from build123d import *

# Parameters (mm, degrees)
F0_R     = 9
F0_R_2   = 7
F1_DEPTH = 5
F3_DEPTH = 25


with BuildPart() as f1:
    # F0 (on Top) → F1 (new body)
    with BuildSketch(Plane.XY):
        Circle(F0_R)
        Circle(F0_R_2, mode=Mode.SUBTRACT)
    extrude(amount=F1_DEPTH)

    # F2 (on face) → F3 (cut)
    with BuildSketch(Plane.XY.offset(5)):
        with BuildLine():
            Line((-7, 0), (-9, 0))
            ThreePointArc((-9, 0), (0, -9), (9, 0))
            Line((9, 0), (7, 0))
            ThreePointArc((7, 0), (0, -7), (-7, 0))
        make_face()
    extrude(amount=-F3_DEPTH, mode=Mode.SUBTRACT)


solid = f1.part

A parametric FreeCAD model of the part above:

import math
import FreeCAD as App
import Part
import Sketcher
from FreeCAD import Vector
Q = App.Units.Quantity

doc = App.newDocument("Part")
body = doc.addObject("PartDesign::Body", "Body")

sketch1 = body.newObject("Sketcher::SketchObject", "Sketch")
sketch1.AttachmentSupport = (doc.getObject("XY_Plane"), [""])
sketch1.MapMode = "FlatFace"
sketch1.addGeometry([
    Part.Circle(Vector(0, 0, 0), Vector(0, 0, 1), 9),
    Part.Circle(Vector(0, 0, 0), Vector(0, 0, 1), 7),
], False)
sketch1.addConstraint([
    Sketcher.Constraint("Coincident", 0, 3, -1, 1),
    Sketcher.Constraint("Coincident", 1, 3, -1, 1),
    Sketcher.Constraint("Diameter", 0, Q("18 mm")),
    Sketcher.Constraint("Diameter", 1, Q("14 mm")),
])
pad1 = body.newObject("PartDesign::Pad", "Pad")
pad1.Profile = sketch1
pad1.Length = 5

sketch2 = body.newObject("Sketcher::SketchObject", "Sketch001")
sketch2.AttachmentSupport = (doc.getObject("XY_Plane"), [""])
sketch2.MapMode = "FlatFace"
sketch2.AttachmentOffset = App.Placement(Vector(0, 0, 5), App.Rotation())
sketch2.addGeometry([
    Part.LineSegment(Vector(-7, 0, 0), Vector(-9, 0, 0)),
    Part.ArcOfCircle(Part.Circle(Vector(0, 0, 0), Vector(0, 0, 1), 9), math.radians(180), math.radians(360)),
    Part.LineSegment(Vector(9, 0, 0), Vector(7, 0, 0)),
    Part.ArcOfCircle(Part.Circle(Vector(0, 0, 0), Vector(0, 0, 1), 7), math.radians(180), math.radians(360)),
], False)
sketch2.addConstraint([
    Sketcher.Constraint("Coincident", 0, 2, 1, 1),
    Sketcher.Constraint("Coincident", 1, 2, 2, 1),
    Sketcher.Constraint("Coincident", 2, 2, 3, 2),
    Sketcher.Constraint("Coincident", 3, 1, 0, 1),
    Sketcher.Constraint("Horizontal", 0),
    Sketcher.Constraint("Horizontal", 2),
    Sketcher.Constraint("Coincident", 1, 3, -1, 1),
    Sketcher.Constraint("Coincident", 3, 3, -1, 1),
    Sketcher.Constraint("PointOnObject", 0, 2, -1),
    Sketcher.Constraint("PointOnObject", 1, 2, -1),
    Sketcher.Constraint("Radius", 1, Q("9 mm")),
    Sketcher.Constraint("Radius", 3, Q("7 mm")),
])
pocket1 = body.newObject("PartDesign::Pocket", "Pocket")
pocket1.Profile = sketch2
pocket1.Length = 25

doc.recompute()
